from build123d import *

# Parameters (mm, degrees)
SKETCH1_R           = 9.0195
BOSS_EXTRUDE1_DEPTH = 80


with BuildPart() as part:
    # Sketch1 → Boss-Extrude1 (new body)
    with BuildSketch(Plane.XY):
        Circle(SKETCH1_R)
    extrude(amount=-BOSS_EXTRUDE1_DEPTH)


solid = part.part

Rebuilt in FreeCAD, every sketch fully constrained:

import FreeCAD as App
import Part
import Sketcher

V = App.Vector
Q = App.Units.Quantity

doc = App.newDocument("Part")
params = doc.addObject("Spreadsheet::Sheet", "Params")
for row, (alias, value) in enumerate([
    ("pad1_length", "80 mm"),
], start=1):
    params.set(f"A{row}", alias)
    params.set(f"B{row}", "=" + value)
    params.setAlias(f"B{row}", alias)

body = doc.addObject("PartDesign::Body", "Body")

# Sketch on XY plane
sketch1 = body.newObject("Sketcher::SketchObject", "Sketch")
sketch1.AttachmentSupport = (doc.getObject("XY_Plane"), [""])
sketch1.MapMode = "FlatFace"
sketch1.addGeometry(Part.Circle(V(0, 0, 0), V(0, 0, 1), 9.0195), False)
sketch1.addConstraint([
    Sketcher.Constraint("Coincident", 0, 3, -1, 1),
    Sketcher.Constraint("Diameter", 0, Q("18.039 mm")),
])
pad1 = body.newObject("PartDesign::Pad", "Pad")
pad1.Profile = sketch1
pad1.setExpression("Length", "Params.pad1_length")
pad1.Reversed = True

doc.recompute()
